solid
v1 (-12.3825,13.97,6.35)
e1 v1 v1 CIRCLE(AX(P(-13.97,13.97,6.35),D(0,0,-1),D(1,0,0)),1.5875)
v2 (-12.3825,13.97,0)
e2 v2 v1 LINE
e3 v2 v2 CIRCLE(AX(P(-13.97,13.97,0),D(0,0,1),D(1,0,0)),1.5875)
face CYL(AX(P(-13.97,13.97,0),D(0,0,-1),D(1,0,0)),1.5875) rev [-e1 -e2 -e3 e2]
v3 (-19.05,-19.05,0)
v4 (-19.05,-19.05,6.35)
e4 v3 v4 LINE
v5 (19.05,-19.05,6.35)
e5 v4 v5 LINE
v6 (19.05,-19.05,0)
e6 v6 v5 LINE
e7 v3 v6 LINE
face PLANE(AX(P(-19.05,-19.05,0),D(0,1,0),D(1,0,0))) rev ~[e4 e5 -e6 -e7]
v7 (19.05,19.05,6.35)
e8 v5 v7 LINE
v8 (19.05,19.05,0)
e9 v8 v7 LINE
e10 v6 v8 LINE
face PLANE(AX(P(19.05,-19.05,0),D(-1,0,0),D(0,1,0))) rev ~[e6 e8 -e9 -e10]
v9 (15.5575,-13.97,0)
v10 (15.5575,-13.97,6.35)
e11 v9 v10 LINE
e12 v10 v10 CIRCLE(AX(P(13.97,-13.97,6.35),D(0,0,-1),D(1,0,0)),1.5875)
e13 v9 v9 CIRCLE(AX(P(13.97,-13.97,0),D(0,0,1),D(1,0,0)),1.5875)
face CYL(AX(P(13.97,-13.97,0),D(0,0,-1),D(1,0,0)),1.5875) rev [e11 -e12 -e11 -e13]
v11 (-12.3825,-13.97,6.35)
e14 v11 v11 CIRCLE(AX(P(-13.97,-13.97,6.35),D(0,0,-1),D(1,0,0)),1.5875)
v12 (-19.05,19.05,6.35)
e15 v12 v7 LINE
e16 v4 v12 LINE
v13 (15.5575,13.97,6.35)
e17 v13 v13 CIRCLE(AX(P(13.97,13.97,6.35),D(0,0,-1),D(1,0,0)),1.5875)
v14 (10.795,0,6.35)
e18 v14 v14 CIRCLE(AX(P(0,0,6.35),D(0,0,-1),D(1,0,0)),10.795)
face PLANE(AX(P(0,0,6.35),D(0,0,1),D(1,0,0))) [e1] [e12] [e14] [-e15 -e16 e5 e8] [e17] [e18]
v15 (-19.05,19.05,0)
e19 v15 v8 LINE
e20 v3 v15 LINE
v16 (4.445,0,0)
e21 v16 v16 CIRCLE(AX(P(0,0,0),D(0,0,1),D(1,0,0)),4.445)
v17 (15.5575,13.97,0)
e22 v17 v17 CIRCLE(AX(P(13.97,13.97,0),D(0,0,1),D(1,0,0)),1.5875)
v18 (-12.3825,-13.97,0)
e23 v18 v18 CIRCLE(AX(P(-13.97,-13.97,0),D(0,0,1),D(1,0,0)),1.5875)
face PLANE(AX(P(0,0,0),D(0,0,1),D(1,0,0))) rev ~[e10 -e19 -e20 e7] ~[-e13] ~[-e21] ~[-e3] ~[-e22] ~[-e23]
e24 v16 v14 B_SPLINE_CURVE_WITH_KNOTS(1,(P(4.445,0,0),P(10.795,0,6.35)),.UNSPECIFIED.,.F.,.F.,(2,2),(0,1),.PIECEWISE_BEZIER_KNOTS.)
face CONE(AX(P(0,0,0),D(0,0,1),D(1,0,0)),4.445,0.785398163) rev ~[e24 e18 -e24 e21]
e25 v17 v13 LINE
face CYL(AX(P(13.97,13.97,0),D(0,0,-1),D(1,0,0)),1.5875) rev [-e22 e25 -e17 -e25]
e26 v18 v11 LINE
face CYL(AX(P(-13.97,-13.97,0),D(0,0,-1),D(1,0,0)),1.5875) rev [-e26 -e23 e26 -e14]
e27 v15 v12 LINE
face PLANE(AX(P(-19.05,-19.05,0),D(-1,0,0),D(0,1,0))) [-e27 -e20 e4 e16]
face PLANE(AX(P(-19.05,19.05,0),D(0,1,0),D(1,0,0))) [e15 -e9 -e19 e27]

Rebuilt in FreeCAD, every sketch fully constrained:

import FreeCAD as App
import Part
import Sketcher
from FreeCAD import Vector
Q = App.Units.Quantity

doc = App.newDocument("Part")
body = doc.addObject("PartDesign::Body", "Body")

# Sketch on XY plane
sketch1 = doc.addObject("Sketcher::SketchObject", "Sketch")
body.addObject(sketch1)
sketch1.AttachmentSupport = (doc.XY_Plane, [""])
sketch1.MapMode = "FlatFace"
sketch1.addGeometry([
    Part.LineSegment(Vector(-19, 19, 0), Vector(-19, -19, 0)),
    Part.LineSegment(Vector(-19, -19, 0), Vector(19, -19, 0)),
    Part.LineSegment(Vector(19, -19, 0), Vector(19, 19, 0)),
    Part.LineSegment(Vector(19, 19, 0), Vector(-19, 19, 0)),
], False)
sketch1.addConstraint([
    Sketcher.Constraint("Coincident", 0, 2, 1, 1),
    Sketcher.Constraint("Coincident", 1, 2, 2, 1),
    Sketcher.Constraint("Coincident", 2, 2, 3, 1),
    Sketcher.Constraint("Coincident", 3, 2, 0, 1),
    Sketcher.Constraint("Vertical", 0),
    Sketcher.Constraint("Horizontal", 1),
    Sketcher.Constraint("Vertical", 2),
    Sketcher.Constraint("Horizontal", 3),
    Sketcher.Constraint("Symmetric", 0, 2, 2, 2, -1, 1),
    Sketcher.Constraint("Equal", 3, 0),
    Sketcher.Constraint("DistanceX", 1, 1, 1, 2, Q("1.5 in")),
])
pad1 = doc.addObject("PartDesign::Pad", "Pad")
body.addObject(pad1)
pad1.Profile = sketch1
pad1.Length = Q("0.25 in")

# Sketch on XY plane
sketch2 = doc.addObject("Sketcher::SketchObject", "Sketch001")
body.addObject(sketch2)
sketch2.AttachmentSupport = (doc.XY_Plane, [""])
sketch2.MapMode = "FlatFace"
sketch2.addGeometry(Part.Circle(Vector(0, 0, 0), Vector(0, 0, 1), 4.4), False)
sketch2.addConstraint([
    Sketcher.Constraint("Coincident", 0, 3, -1, 1),
    Sketcher.Constraint("Diameter", 0, Q("0.35 in")),
])
pocket1 = doc.addObject("PartDesign::Pocket", "Pocket")
body.addObject(pocket1)
pocket1.Profile = sketch2
pocket1.Length = Q("1 in")
pocket1.Reversed = True

# Sketch on XY plane
sketch3 = doc.addObject("Sketcher::SketchObject", "Sketch002")
body.addObject(sketch3)
sketch3.AttachmentSupport = (doc.XY_Plane, [""])
sketch3.MapMode = "FlatFace"
sketch3.addGeometry(Part.Circle(Vector(0, 0, 0), Vector(0, 0, 1), 4.4), False)
sketch3.addConstraint([
    Sketcher.Constraint("Coincident", 0, 3, -1, 1),
    Sketcher.Constraint("Diameter", 0, Q("0.35 in")),
])
pocket2 = doc.addObject("PartDesign::Pocket", "Pocket001")
body.addObject(pocket2)
pocket2.Profile = sketch3
pocket2.Length = Q("0.25 in")
pocket2.Reversed = True
pocket2.TaperAngle = 45

# Sketch on XY plane
sketch4 = doc.addObject("Sketcher::SketchObject", "Sketch003")
body.addObject(sketch4)
sketch4.AttachmentSupport = (doc.XY_Plane, [""])
sketch4.MapMode = "FlatFace"
sketch4.addGeometry([
    Part.Circle(Vector(14, -14, 0), Vector(0, 0, 1), 1.6),
    Part.Circle(Vector(14, 14, 0), Vector(0, 0, 1), 1.6),
    Part.Circle(Vector(-14, -14, 0), Vector(0, 0, 1), 1.6),
    Part.Circle(Vector(-14, 14, 0), Vector(0, 0, 1), 1.6),
], False)
sketch4.addConstraint([
    Sketcher.Constraint("Equal", 0, 1),
    Sketcher.Constraint("Equal", 1, 2),
    Sketcher.Constraint("Equal", 2, 3),
    Sketcher.Constraint("Symmetric", 1, 3, 2, 3, -1, 1),
    Sketcher.Constraint("Symmetric", 0, 3, 3, 3, -1, 1),
    Sketcher.Constraint("Symmetric", 0, 3, 2, 3, -2),
    Sketcher.Constraint("Diameter", 0, Q("0.125 in")),
    Sketcher.Constraint("DistanceY", 0, 3, 1, 3, Q("1.1 in")),
    Sketcher.Constraint("DistanceX", 2, 3, 0, 3, Q("1.1 in")),
])
pocket3 = doc.addObject("PartDesign::Pocket", "Pocket002")
body.addObject(pocket3)
pocket3.Profile = sketch4
pocket3.Length = Q("1 in")
pocket3.Reversed = True

doc.recompute()
